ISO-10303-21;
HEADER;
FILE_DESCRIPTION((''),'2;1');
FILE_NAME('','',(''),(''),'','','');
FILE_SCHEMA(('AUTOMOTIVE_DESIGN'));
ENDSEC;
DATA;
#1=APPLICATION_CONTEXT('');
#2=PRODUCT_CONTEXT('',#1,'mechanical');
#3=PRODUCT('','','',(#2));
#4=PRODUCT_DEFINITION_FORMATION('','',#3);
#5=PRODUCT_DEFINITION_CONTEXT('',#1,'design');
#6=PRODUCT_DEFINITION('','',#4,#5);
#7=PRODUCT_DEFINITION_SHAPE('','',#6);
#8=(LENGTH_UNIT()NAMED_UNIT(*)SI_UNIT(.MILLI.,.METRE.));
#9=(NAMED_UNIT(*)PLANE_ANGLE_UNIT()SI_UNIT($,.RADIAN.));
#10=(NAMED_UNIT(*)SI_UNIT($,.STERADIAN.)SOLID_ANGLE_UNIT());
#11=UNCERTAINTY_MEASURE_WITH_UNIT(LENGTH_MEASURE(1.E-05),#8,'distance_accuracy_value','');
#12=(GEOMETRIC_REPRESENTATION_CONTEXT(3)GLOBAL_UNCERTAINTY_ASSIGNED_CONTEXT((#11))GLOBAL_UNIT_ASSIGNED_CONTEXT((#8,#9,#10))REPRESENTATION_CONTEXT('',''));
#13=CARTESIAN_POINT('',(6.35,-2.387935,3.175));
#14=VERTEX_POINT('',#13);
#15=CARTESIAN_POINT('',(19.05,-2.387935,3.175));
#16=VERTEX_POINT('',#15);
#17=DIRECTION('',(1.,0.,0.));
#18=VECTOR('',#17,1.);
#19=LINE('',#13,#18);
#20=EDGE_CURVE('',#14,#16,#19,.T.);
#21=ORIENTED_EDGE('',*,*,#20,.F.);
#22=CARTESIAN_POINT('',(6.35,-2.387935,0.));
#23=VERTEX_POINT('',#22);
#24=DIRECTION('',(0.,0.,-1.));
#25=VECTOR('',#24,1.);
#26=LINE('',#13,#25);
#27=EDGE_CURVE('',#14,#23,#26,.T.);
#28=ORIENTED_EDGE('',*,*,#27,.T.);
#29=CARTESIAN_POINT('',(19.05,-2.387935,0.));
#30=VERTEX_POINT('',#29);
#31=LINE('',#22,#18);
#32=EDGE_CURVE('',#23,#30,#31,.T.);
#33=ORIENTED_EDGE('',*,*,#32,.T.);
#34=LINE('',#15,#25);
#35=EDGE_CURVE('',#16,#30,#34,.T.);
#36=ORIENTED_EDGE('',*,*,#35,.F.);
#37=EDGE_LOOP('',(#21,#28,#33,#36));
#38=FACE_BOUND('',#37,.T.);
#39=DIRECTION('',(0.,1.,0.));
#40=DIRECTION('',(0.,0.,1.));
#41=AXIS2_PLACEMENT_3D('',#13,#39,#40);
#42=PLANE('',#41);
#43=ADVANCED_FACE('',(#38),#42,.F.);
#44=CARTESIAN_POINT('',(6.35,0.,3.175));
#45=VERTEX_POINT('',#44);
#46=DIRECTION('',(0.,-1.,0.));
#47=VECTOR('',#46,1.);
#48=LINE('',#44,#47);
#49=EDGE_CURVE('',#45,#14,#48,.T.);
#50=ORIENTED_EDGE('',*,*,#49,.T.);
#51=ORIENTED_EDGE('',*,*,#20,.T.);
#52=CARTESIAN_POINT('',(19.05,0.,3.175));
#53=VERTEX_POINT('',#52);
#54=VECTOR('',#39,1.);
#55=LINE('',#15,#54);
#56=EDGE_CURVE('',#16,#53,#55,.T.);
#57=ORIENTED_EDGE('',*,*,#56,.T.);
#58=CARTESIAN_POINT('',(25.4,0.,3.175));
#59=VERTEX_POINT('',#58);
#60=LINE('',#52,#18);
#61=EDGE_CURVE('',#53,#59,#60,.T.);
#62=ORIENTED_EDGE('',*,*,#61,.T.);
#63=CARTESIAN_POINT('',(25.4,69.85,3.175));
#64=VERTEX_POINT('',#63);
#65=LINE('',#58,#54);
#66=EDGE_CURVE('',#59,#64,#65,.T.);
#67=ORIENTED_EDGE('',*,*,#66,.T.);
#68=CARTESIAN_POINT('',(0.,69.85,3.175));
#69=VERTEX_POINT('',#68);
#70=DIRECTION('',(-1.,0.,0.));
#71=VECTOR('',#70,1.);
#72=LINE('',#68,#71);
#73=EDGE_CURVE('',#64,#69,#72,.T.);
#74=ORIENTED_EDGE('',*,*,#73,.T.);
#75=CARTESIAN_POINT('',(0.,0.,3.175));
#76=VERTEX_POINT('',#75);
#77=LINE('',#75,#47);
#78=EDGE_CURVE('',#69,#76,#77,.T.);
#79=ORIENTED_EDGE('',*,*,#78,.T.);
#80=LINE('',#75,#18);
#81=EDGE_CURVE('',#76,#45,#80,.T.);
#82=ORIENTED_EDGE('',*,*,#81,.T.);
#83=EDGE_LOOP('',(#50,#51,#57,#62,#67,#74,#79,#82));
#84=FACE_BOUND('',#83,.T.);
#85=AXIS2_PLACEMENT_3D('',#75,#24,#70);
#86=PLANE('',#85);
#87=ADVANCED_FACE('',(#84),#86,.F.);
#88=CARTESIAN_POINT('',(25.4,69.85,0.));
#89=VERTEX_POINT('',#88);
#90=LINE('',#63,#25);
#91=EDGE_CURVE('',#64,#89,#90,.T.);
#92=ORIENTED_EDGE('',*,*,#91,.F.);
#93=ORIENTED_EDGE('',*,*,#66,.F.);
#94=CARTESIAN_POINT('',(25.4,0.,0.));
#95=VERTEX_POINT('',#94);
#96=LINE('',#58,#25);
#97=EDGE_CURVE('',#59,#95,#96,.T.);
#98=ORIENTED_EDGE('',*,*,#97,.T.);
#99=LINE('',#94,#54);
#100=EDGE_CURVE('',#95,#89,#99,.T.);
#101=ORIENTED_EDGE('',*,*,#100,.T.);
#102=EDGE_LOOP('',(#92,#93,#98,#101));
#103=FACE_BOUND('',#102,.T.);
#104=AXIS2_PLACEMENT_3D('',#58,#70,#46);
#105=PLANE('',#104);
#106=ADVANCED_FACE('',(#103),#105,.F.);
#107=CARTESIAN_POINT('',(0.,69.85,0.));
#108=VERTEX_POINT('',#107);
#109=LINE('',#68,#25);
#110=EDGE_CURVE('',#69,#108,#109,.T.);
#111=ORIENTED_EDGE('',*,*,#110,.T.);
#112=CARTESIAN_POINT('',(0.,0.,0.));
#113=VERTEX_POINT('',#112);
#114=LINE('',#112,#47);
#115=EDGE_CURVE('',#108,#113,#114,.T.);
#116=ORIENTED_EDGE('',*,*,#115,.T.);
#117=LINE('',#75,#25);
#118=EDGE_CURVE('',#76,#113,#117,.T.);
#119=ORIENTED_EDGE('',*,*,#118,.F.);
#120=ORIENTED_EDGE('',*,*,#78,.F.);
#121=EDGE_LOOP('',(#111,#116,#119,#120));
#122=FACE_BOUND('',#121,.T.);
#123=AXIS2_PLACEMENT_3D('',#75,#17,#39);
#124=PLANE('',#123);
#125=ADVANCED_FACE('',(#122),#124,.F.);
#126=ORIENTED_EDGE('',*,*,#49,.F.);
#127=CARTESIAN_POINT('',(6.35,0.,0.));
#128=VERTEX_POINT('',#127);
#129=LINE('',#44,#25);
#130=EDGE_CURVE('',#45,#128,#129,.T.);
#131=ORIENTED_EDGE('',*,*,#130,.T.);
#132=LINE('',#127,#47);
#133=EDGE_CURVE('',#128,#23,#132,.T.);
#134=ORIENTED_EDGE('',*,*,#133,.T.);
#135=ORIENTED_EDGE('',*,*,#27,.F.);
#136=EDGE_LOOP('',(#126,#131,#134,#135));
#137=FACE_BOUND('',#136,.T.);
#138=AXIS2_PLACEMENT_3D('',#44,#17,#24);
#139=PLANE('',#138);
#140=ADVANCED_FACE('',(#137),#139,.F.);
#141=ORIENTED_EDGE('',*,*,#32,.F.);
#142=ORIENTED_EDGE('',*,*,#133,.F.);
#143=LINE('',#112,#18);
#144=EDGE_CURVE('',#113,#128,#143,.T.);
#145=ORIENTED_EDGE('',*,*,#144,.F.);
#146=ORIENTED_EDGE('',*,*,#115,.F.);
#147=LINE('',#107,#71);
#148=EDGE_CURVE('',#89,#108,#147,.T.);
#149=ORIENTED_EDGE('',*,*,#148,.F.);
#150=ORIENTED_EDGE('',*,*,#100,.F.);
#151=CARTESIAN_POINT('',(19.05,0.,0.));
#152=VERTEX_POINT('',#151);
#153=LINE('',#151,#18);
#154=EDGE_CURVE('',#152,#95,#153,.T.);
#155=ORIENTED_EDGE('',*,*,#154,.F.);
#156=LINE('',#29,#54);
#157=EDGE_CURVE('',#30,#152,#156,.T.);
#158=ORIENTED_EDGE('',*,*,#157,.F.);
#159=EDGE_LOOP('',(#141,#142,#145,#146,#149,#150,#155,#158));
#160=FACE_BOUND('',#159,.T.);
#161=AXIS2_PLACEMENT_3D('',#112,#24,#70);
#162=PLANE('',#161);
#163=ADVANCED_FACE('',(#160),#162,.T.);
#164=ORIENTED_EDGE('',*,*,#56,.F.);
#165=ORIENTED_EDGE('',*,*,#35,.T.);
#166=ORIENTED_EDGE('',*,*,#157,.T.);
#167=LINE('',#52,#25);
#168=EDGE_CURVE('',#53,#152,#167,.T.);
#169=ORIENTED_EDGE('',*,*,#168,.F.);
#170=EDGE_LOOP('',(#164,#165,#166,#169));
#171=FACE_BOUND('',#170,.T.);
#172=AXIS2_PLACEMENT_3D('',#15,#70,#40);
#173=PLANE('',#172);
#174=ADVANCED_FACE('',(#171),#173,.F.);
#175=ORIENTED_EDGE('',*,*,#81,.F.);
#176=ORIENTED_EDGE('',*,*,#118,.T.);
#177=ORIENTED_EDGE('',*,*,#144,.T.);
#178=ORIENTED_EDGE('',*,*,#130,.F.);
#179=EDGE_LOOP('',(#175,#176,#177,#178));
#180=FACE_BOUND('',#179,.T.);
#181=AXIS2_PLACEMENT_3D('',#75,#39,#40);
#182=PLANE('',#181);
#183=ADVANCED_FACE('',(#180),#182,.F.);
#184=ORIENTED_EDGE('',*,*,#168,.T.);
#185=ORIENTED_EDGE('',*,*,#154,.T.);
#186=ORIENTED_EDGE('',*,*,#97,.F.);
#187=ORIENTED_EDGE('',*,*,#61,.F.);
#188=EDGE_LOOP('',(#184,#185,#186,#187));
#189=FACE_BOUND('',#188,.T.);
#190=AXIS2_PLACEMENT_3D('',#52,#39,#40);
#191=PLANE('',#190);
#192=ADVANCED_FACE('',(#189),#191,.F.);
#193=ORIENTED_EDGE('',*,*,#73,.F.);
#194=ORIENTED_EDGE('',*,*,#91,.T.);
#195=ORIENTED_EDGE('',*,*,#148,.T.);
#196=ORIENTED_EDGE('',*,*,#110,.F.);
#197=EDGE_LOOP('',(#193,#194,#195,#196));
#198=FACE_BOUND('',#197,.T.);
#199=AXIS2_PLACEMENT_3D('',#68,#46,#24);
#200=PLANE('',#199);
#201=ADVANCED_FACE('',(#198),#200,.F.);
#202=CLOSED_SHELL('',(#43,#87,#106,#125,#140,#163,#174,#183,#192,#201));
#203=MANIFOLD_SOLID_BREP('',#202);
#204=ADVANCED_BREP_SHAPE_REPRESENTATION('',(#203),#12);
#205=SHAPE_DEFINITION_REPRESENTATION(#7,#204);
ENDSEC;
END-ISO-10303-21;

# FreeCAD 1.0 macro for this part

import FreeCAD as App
import Part
import Sketcher
Q = App.Units.Quantity


def add_polygon(sketch, points):
    """Adds a closed chain of lines whose ends are joined by coincident constraints."""
    first, n = sketch.GeometryCount, len(points)
    for a, b in zip(points, points[1:] + points[:1]):
        sketch.addGeometry(Part.LineSegment(App.Vector(*a, 0), App.Vector(*b, 0)), False)
    for i in range(n):
        sketch.addConstraint(Sketcher.Constraint("Coincident", first + i, 2, first + (i + 1) % n, 1))

doc = App.newDocument("Part")
body = doc.addObject("PartDesign::Body", "Body")

# Sketch on XY plane
sketch1 = doc.addObject("Sketcher::SketchObject", "Sketch")
body.addObject(sketch1)
sketch1.AttachmentSupport = (doc.XY_Plane, [""])
sketch1.MapMode = "FlatFace"
add_polygon(sketch1, [(6.3, 0), (6.3, -2.4), (19.1, -2.4), (19.1, 0), (25.4, 0), (25.4, 69.8), (0, 69.8), (0, 0)])  # lines 0-7
sketch1.addConstraint([
    Sketcher.Constraint("Vertical", 0),
    Sketcher.Constraint("Horizontal", 1),
    Sketcher.Constraint("Vertical", 2),
    Sketcher.Constraint("Horizontal", 3),
    Sketcher.Constraint("Vertical", 4),
    Sketcher.Constraint("Horizontal", 5),
    Sketcher.Constraint("Vertical", 6),
    Sketcher.Constraint("Horizontal", 7),
    Sketcher.Constraint("Coincident", 6, 2, -1, 1),
    Sketcher.Constraint("PointOnObject", 2, 2, -1),
    Sketcher.Constraint("Equal", 3, 7),
    Sketcher.Constraint("DistanceX", 5, 2, 5, 1, Q("1 in")),
    Sketcher.Constraint("DistanceX", 1, 1, 1, 2, Q("0.5 in")),
    Sketcher.Constraint("DistanceY", 4, 1, 4, 2, Q("2.75 in")),
    Sketcher.Constraint("DistanceY", 0, 2, 0, 1, Q("2.387935 mm")),
])
pad1 = doc.addObject("PartDesign::Pad", "Pad")
body.addObject(pad1)
pad1.Profile = sketch1
pad1.Length = Q("0.125 in")

doc.recompute()
